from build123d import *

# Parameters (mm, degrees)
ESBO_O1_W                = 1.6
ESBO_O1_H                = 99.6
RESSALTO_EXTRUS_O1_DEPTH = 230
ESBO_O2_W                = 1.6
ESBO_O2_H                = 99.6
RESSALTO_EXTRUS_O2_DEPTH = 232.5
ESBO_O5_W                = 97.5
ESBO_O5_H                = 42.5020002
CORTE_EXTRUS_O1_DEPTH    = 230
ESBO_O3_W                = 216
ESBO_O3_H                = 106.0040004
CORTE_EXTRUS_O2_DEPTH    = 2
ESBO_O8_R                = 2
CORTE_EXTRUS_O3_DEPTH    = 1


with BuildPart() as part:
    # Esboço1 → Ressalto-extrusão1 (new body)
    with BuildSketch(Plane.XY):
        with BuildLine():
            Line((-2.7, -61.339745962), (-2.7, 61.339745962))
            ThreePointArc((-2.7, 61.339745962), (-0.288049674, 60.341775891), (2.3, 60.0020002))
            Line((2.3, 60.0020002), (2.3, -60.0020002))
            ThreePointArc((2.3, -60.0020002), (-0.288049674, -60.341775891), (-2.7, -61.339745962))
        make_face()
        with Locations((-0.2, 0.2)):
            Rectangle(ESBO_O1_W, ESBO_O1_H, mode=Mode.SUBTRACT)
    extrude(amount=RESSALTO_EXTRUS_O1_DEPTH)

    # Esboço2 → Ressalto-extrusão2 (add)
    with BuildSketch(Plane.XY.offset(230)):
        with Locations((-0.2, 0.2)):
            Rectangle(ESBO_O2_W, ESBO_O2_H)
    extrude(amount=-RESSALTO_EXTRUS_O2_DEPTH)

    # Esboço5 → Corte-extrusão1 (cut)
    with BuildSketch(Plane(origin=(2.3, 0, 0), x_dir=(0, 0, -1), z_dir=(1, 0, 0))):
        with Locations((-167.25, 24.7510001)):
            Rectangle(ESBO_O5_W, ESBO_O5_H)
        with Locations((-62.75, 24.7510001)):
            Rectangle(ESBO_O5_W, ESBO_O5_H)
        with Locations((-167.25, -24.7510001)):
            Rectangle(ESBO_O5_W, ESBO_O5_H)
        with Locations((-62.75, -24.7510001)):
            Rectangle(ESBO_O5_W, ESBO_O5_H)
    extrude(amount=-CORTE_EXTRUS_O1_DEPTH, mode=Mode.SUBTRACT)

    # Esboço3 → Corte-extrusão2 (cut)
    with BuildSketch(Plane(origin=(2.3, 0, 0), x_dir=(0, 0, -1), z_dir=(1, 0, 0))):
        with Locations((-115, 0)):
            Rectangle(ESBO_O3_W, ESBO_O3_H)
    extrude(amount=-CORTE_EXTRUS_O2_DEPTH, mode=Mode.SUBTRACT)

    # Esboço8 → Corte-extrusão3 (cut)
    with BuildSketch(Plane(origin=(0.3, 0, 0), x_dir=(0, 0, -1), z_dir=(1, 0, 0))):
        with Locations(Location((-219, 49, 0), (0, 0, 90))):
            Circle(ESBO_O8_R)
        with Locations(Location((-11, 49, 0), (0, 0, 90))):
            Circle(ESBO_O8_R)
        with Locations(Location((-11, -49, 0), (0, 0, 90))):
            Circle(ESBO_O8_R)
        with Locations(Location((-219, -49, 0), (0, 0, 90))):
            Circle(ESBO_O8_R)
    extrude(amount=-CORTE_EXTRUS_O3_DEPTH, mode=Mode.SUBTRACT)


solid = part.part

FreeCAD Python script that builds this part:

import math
import FreeCAD as App
import Part
import Sketcher

doc = App.newDocument("Part")
body = doc.addObject("PartDesign::Body", "Body")

sketch1 = body.newObject("Sketcher::SketchObject", "Sketch")
sketch1.AttachmentSupport = (doc.getObject("XY_Plane"), [""])
sketch1.MapMode = "FlatFace"
sketch1.addGeometry([
    Part.LineSegment(App.Vector(-2.7, 61.339746, 0), App.Vector(-2.7, -61.339746, 0)),
    Part.ArcOfCircle(Part.Circle(App.Vector(2.296535, -70.002, 0), App.Vector(0, 0, 1), 10), math.radians(89.980147), math.radians(119.977078)),
    Part.LineSegment(App.Vector(2.3, -60.002, 0), App.Vector(2.3, 60.002, 0)),
    Part.ArcOfCircle(Part.Circle(App.Vector(2.296535, 70.002, 0), App.Vector(0, 0, 1), 10), math.radians(-119.977078), math.radians(-89.980147)),
    Part.LineSegment(App.Vector(-1, -49.6, 0), App.Vector(-1, 50, 0)),
    Part.LineSegment(App.Vector(-1, 50, 0), App.Vector(0.6, 50, 0)),
    Part.LineSegment(App.Vector(0.6, 50, 0), App.Vector(0.6, -49.6, 0)),
    Part.LineSegment(App.Vector(0.6, -49.6, 0), App.Vector(-1, -49.6, 0)),
], False)
sketch1.addConstraint([
    Sketcher.Constraint("Coincident", 0, 2, 1, 2),
    Sketcher.Constraint("Coincident", 1, 1, 2, 1),
    Sketcher.Constraint("Coincident", 2, 2, 3, 2),
    Sketcher.Constraint("Coincident", 3, 1, 0, 1),
    Sketcher.Constraint("Coincident", 4, 2, 5, 1),
    Sketcher.Constraint("Coincident", 5, 2, 6, 1),
    Sketcher.Constraint("Coincident", 6, 2, 7, 1),
    Sketcher.Constraint("Coincident", 7, 2, 4, 1),
    Sketcher.Constraint("Vertical", 0),
    Sketcher.Constraint("Vertical", 2),
    Sketcher.Constraint("Vertical", 4),
    Sketcher.Constraint("Horizontal", 5),
    Sketcher.Constraint("Vertical", 6),
    Sketcher.Constraint("Horizontal", 7),
    Sketcher.Constraint("Equal", 1, 3),
    Sketcher.Constraint("Symmetric", 1, 3, 3, 3, -1),
    Sketcher.Constraint("Radius", 1, 10.0),
    Sketcher.Constraint("DistanceX", 5, 1, 5, 2, 1.6),
    Sketcher.Constraint("DistanceY", 4, 1, 4, 2, 99.6),
    Sketcher.Constraint("DistanceX", 4, 2, -1, 1, 1.0),
    Sketcher.Constraint("DistanceY", -1, 1, 4, 2, 50.0),
    Sketcher.Constraint("DistanceX", 0, 2, 1, 1, 5.0),
    Sketcher.Constraint("DistanceX", 0, 2, -1, 1, 2.7),
    Sketcher.Constraint("DistanceY", 2, 1, 2, 2, 120.004),
    Sketcher.Constraint("DistanceY", 0, 2, 0, 1, 122.679492),
])
pad1 = body.newObject("PartDesign::Pad", "Pad")
pad1.Profile = sketch1
pad1.Length = 230

sketch2 = body.newObject("Sketcher::SketchObject", "Sketch001")
sketch2.AttachmentSupport = (doc.getObject("XY_Plane"), [""])
sketch2.MapMode = "FlatFace"
sketch2.AttachmentOffset = App.Placement(App.Vector(0, 0, 230), App.Rotation())
sketch2.addGeometry([
    Part.LineSegment(App.Vector(-1, 50, 0), App.Vector(-1, -49.6, 0)),
    Part.LineSegment(App.Vector(-1, -49.6, 0), App.Vector(0.6, -49.6, 0)),
    Part.LineSegment(App.Vector(0.6, -49.6, 0), App.Vector(0.6, 50, 0)),
    Part.LineSegment(App.Vector(0.6, 50, 0), App.Vector(-1, 50, 0)),
], False)
sketch2.addConstraint([
    Sketcher.Constraint("Coincident", 0, 2, 1, 1),
    Sketcher.Constraint("Coincident", 1, 2, 2, 1),
    Sketcher.Constraint("Coincident", 2, 2, 3, 1),
    Sketcher.Constraint("Coincident", 3, 2, 0, 1),
    Sketcher.Constraint("Vertical", 0),
    Sketcher.Constraint("Horizontal", 1),
    Sketcher.Constraint("Vertical", 2),
    Sketcher.Constraint("Horizontal", 3),
    Sketcher.Constraint("DistanceX", 1, 1, 1, 2, 1.6),
    Sketcher.Constraint("DistanceY", 0, 2, 0, 1, 99.6),
    Sketcher.Constraint("DistanceX", 0, 2, -1, 1, 1.0),
    Sketcher.Constraint("DistanceY", -1, 1, 2, 2, 50.0),
])
pad2 = body.newObject("PartDesign::Pad", "Pad001")
pad2.Profile = sketch2
pad2.Length = 232.5
pad2.Reversed = True

sketch3 = body.newObject("Sketcher::SketchObject", "Sketch002")
sketch3.AttachmentSupport = (doc.getObject("YZ_Plane"), [""])
sketch3.MapMode = "FlatFace"
sketch3.AttachmentOffset = App.Placement(App.Vector(0, 0, 2.3), App.Rotation())
sketch3.addGeometry([
    Part.LineSegment(App.Vector(46.002, 216, 0), App.Vector(3.5, 216, 0)),
    Part.LineSegment(App.Vector(3.5, 216, 0), App.Vector(3.5, 118.5, 0)),
    Part.LineSegment(App.Vector(3.5, 118.5, 0), App.Vector(46.002, 118.5, 0)),
    Part.LineSegment(App.Vector(46.002, 118.5, 0), App.Vector(46.002, 216, 0)),
    Part.LineSegment(App.Vector(46.002, 111.5, 0), App.Vector(3.5, 111.5, 0)),
    Part.LineSegment(App.Vector(3.5, 111.5, 0), App.Vector(3.5, 14, 0)),
    Part.LineSegment(App.Vector(3.5, 14, 0), App.Vector(46.002, 14, 0)),
    Part.LineSegment(App.Vector(46.002, 14, 0), App.Vector(46.002, 111.5, 0)),
    Part.LineSegment(App.Vector(-3.5, 216, 0), App.Vector(-46.002, 216, 0)),
    Part.LineSegment(App.Vector(-46.002, 216, 0), App.Vector(-46.002, 118.5, 0)),
    Part.LineSegment(App.Vector(-46.002, 118.5, 0), App.Vector(-3.5, 118.5, 0)),
    Part.LineSegment(App.Vector(-3.5, 118.5, 0), App.Vector(-3.5, 216, 0)),
    Part.LineSegment(App.Vector(-3.5, 111.5, 0), App.Vector(-46.002, 111.5, 0)),
    Part.LineSegment(App.Vector(-46.002, 111.5, 0), App.Vector(-46.002, 14, 0)),
    Part.LineSegment(App.Vector(-46.002, 14, 0), App.Vector(-3.5, 14, 0)),
    Part.LineSegment(App.Vector(-3.5, 14, 0), App.Vector(-3.5, 111.5, 0)),
], False)
sketch3.addConstraint([
    Sketcher.Constraint("Coincident", 0, 2, 1, 1),
    Sketcher.Constraint("Coincident", 1, 2, 2, 1),
    Sketcher.Constraint("Coincident", 2, 2, 3, 1),
    Sketcher.Constraint("Coincident", 3, 2, 0, 1),
    Sketcher.Constraint("Coincident", 4, 2, 5, 1),
    Sketcher.Constraint("Coincident", 5, 2, 6, 1),
    Sketcher.Constraint("Coincident", 6, 2, 7, 1),
    Sketcher.Constraint("Coincident", 7, 2, 4, 1),
    Sketcher.Constraint("Coincident", 8, 2, 9, 1),
    Sketcher.Constraint("Coincident", 9, 2, 10, 1),
    Sketcher.Constraint("Coincident", 10, 2, 11, 1),
    Sketcher.Constraint("Coincident", 11, 2, 8, 1),
    Sketcher.Constraint("Coincident", 12, 2, 13, 1),
    Sketcher.Constraint("Coincident", 13, 2, 14, 1),
    Sketcher.Constraint("Coincident", 14, 2, 15, 1),
    Sketcher.Constraint("Coincident", 15, 2, 12, 1),
    Sketcher.Constraint("Horizontal", 0),
    Sketcher.Constraint("Vertical", 1),
    Sketcher.Constraint("Horizontal", 2),
    Sketcher.Constraint("Vertical", 3),
    Sketcher.Constraint("Horizontal", 4),
    Sketcher.Constraint("Vertical", 5),
    Sketcher.Constraint("Horizontal", 6),
    Sketcher.Constraint("Vertical", 7),
    Sketcher.Constraint("Horizontal", 8),
    Sketcher.Constraint("Vertical", 9),
    Sketcher.Constraint("Horizontal", 10),
    Sketcher.Constraint("Vertical", 11),
    Sketcher.Constraint("Horizontal", 12),
    Sketcher.Constraint("Vertical", 13),
    Sketcher.Constraint("Horizontal", 14),
    Sketcher.Constraint("Vertical", 15),
    Sketcher.Constraint("Symmetric", 3, 2, 8, 2, -2),
    Sketcher.Constraint("Symmetric", 1, 2, 10, 2, -2),
    Sketcher.Constraint("Symmetric", 7, 2, 12, 2, -2),
    Sketcher.Constraint("Symmetric", 5, 2, 14, 2, -2),
    Sketcher.Constraint("Vertical", 1, 2, 4, 2),
    Sketcher.Constraint("Vertical", 3, 2, 6, 2),
    Sketcher.Constraint("Equal", 3, 5),
    Sketcher.Constraint("DistanceY", 1, 2, 1, 1, 97.5),
    Sketcher.Constraint("DistanceY", -1, 1, 0, 2, 216.0),
    Sketcher.Constraint("DistanceY", -1, 1, 5, 2, 14.0),
    Sketcher.Constraint("DistanceX", 10, 2, 1, 2, 7.0),
    Sketcher.Constraint("DistanceX", 0, 2, 0, 1, 42.502),
])
pocket1 = body.newObject("PartDesign::Pocket", "Pocket")
pocket1.Profile = sketch3
pocket1.Length = 230

sketch4 = body.newObject("Sketcher::SketchObject", "Sketch003")
sketch4.AttachmentSupport = (doc.getObject("YZ_Plane"), [""])
sketch4.MapMode = "FlatFace"
sketch4.AttachmentOffset = App.Placement(App.Vector(0, 0, 2.3), App.Rotation())
sketch4.addGeometry([
    Part.LineSegment(App.Vector(53.002, 223, 0), App.Vector(-53.002, 223, 0)),
    Part.LineSegment(App.Vector(-53.002, 223, 0), App.Vector(-53.002, 7, 0)),
    Part.LineSegment(App.Vector(-53.002, 7, 0), App.Vector(53.002, 7, 0)),
    Part.LineSegment(App.Vector(53.002, 7, 0), App.Vector(53.002, 223, 0)),
], False)
sketch4.addConstraint([
    Sketcher.Constraint("Coincident", 0, 2, 1, 1),
    Sketcher.Constraint("Coincident", 1, 2, 2, 1),
    Sketcher.Constraint("Coincident", 2, 2, 3, 1),
    Sketcher.Constraint("Coincident", 3, 2, 0, 1),
    Sketcher.Constraint("Horizontal", 0),
    Sketcher.Constraint("Vertical", 1),
    Sketcher.Constraint("Horizontal", 2),
    Sketcher.Constraint("Vertical", 3),
    Sketcher.Constraint("DistanceY", 1, 2, 1, 1, 216.0),
    Sketcher.Constraint("DistanceY", -1, 1, 0, 2, 223.0),
    Sketcher.Constraint("DistanceX", 0, 2, 0, 1, 106.004),
    Sketcher.Constraint("DistanceX", 0, 2, -1, 1, 53.002),
])
pocket2 = body.newObject("PartDesign::Pocket", "Pocket001")
pocket2.Profile = sketch4
pocket2.Length = 2

sketch5 = body.newObject("Sketcher::SketchObject", "Sketch004")
sketch5.AttachmentSupport = (doc.getObject("YZ_Plane"), [""])
sketch5.MapMode = "FlatFace"
sketch5.AttachmentOffset = App.Placement(App.Vector(0, 0, 0.3), App.Rotation())
sketch5.addGeometry([
    Part.Circle(App.Vector(49, 219, 0), App.Vector(0, 0, 1), 2),
    Part.Circle(App.Vector(49, 11, 0), App.Vector(0, 0, 1), 2),
    Part.Circle(App.Vector(-49, 11, 0), App.Vector(0, 0, 1), 2),
    Part.Circle(App.Vector(-49, 219, 0), App.Vector(0, 0, 1), 2),
], False)
sketch5.addConstraint([
    Sketcher.Constraint("Equal", 0, 1),
    Sketcher.Constraint("Equal", 1, 2),
    Sketcher.Constraint("Equal", 2, 3),
    Sketcher.Constraint("Symmetric", 1, 3, 2, 3, -2),
    Sketcher.Constraint("Symmetric", 0, 3, 3, 3, -2),
    Sketcher.Constraint("Vertical", 0, 3, 1, 3),
    Sketcher.Constraint("Diameter", 0, 4.0),
    Sketcher.Constraint("DistanceX", -1, 1, 0, 3, 49.0),
    Sketcher.Constraint("DistanceY", -1, 1, 0, 3, 219.0),
    Sketcher.Constraint("DistanceY", -1, 1, 1, 3, 11.0),
])
pocket3 = body.newObject("PartDesign::Pocket", "Pocket002")
pocket3.Profile = sketch5
pocket3.Length = 1

doc.recompute()
